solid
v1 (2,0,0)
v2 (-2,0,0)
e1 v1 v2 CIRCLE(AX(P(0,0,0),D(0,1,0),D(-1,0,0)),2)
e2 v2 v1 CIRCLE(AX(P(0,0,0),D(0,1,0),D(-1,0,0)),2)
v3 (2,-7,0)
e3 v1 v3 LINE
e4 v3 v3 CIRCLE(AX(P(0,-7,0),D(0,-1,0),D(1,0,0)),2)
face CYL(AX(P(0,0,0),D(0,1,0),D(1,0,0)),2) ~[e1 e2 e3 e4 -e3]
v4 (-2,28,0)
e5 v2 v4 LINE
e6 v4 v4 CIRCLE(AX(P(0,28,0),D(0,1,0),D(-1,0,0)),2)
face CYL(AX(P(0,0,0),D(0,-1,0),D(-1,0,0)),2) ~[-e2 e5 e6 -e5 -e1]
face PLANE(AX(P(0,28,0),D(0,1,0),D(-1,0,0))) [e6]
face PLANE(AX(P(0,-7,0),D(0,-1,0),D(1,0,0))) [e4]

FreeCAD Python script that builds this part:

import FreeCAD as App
import Part
import Sketcher

V = App.Vector
Q = App.Units.Quantity

doc = App.newDocument("Part")
params = doc.addObject("Spreadsheet::Sheet", "Params")
for row, (alias, value) in enumerate([
    ("sketch1_diameter", "4 mm"),
    ("pad1_length", "28 mm"),
    ("sketch2_diameter", "4 mm"),
    ("pad2_length", "7 mm"),
], start=1):
    params.set(f"A{row}", alias)
    params.set(f"B{row}", "=" + value)
    params.setAlias(f"B{row}", alias)

body = doc.addObject("PartDesign::Body", "Body")

sketch1 = body.newObject("Sketcher::SketchObject", "Sketch")
sketch1.AttachmentSupport = (doc.getObject("XZ_Plane"), [""])
sketch1.MapMode = "FlatFace"
sketch1.addGeometry(Part.Circle(V(0, 0, 0), V(0, 0, 1), 2), False)
sketch1.addConstraint([
    Sketcher.Constraint("Coincident", 0, 3, -1, 1),
    Sketcher.Constraint("Diameter", 0, Q("4 mm")),
])
sketch1.setExpression("Constraints[1]", "Params.sketch1_diameter")
pad1 = body.newObject("PartDesign::Pad", "Pad")
pad1.Profile = sketch1
pad1.setExpression("Length", "Params.pad1_length")
pad1.Reversed = True

sketch2 = body.newObject("Sketcher::SketchObject", "Sketch001")
sketch2.AttachmentSupport = (doc.getObject("XZ_Plane"), [""])
sketch2.MapMode = "FlatFace"
sketch2.addGeometry(Part.Circle(V(0, 0, 0), V(0, 0, 1), 2), False)
sketch2.addConstraint([
    Sketcher.Constraint("Coincident", 0, 3, -1, 1),
    Sketcher.Constraint("Diameter", 0, Q("4 mm")),
])
sketch2.setExpression("Constraints[1]", "Params.sketch2_diameter")
pad2 = body.newObject("PartDesign::Pad", "Pad001")
pad2.Profile = sketch2
pad2.setExpression("Length", "Params.pad2_length")

doc.recompute()
